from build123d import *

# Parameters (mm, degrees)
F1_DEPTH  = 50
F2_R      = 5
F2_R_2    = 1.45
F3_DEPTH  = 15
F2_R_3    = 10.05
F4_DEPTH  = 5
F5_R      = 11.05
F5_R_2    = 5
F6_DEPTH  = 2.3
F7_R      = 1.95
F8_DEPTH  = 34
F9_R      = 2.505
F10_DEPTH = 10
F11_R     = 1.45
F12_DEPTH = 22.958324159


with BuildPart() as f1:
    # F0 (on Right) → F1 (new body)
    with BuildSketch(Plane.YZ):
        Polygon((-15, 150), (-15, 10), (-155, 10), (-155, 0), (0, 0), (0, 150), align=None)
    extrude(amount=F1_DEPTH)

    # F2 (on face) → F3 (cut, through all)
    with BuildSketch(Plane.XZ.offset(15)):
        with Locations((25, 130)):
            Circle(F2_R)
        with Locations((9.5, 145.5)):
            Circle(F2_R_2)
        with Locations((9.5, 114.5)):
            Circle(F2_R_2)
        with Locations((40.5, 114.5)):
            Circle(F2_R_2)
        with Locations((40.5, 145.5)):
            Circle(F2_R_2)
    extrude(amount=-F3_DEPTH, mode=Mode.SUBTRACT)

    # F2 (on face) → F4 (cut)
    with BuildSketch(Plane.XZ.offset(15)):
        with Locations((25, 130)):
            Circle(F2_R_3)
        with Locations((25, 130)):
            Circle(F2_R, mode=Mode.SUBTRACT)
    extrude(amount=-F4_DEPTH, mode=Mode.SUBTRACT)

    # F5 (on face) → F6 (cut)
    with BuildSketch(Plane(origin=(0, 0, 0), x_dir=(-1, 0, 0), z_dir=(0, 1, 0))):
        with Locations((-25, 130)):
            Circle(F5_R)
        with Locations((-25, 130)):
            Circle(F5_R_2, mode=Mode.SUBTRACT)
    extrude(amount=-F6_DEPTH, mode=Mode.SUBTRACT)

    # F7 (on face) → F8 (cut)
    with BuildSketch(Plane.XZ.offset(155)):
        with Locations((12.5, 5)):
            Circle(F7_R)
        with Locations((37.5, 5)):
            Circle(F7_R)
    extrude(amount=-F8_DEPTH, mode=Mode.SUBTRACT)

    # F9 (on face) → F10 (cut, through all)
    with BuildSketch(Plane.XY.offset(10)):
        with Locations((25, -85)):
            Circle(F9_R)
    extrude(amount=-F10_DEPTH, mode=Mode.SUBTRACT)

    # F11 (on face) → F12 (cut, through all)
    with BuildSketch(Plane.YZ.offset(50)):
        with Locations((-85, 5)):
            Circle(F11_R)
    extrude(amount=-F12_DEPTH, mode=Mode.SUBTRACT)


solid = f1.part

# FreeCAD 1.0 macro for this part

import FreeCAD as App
import Part
import Sketcher
from FreeCAD import Vector

doc = App.newDocument("Part")
body = doc.addObject("PartDesign::Body", "Body")

sketch1 = body.newObject("Sketcher::SketchObject", "Sketch")
sketch1.AttachmentSupport = (doc.getObject("YZ_Plane"), [""])
sketch1.MapMode = "FlatFace"
sketch1.addGeometry([
    Part.LineSegment(Vector(-15, 150, 0), Vector(-15, 10, 0)),
    Part.LineSegment(Vector(-15, 10, 0), Vector(-155, 10, 0)),
    Part.LineSegment(Vector(-155, 10, 0), Vector(-155, 0, 0)),
    Part.LineSegment(Vector(-155, 0, 0), Vector(0, 0, 0)),
    Part.LineSegment(Vector(0, 0, 0), Vector(0, 150, 0)),
    Part.LineSegment(Vector(0, 150, 0), Vector(-15, 150, 0)),
], False)
sketch1.addConstraint([
    Sketcher.Constraint("Coincident", 0, 2, 1, 1),
    Sketcher.Constraint("Coincident", 1, 2, 2, 1),
    Sketcher.Constraint("Coincident", 2, 2, 3, 1),
    Sketcher.Constraint("Coincident", 3, 2, 4, 1),
    Sketcher.Constraint("Coincident", 4, 2, 5, 1),
    Sketcher.Constraint("Coincident", 5, 2, 0, 1),
    Sketcher.Constraint("Vertical", 0),
    Sketcher.Constraint("Horizontal", 1),
    Sketcher.Constraint("Vertical", 2),
    Sketcher.Constraint("Horizontal", 3),
    Sketcher.Constraint("Vertical", 4),
    Sketcher.Constraint("Horizontal", 5),
    Sketcher.Constraint("Coincident", 3, 2, -1, 1),
    Sketcher.Constraint("Equal", 1, 0),
    Sketcher.Constraint("DistanceX", 1, 2, 1, 1, 140.0),
    Sketcher.Constraint("DistanceX", 3, 1, 3, 2, 155.0),
    Sketcher.Constraint("DistanceY", 2, 2, 2, 1, 10.0),
])
pad1 = body.newObject("PartDesign::Pad", "Pad")
pad1.Profile = sketch1
pad1.Length = 50

sketch2 = body.newObject("Sketcher::SketchObject", "Sketch001")
sketch2.AttachmentSupport = (doc.getObject("XZ_Plane"), [""])
sketch2.MapMode = "FlatFace"
sketch2.AttachmentOffset = App.Placement(Vector(0, 0, 15), App.Rotation())
sketch2.addGeometry([
    Part.Circle(Vector(25, 130, 0), Vector(0, 0, 1), 5),
    Part.Circle(Vector(9.5, 145.5, 0), Vector(0, 0, 1), 1.4),
    Part.Circle(Vector(9.5, 114.5, 0), Vector(0, 0, 1), 1.4),
    Part.Circle(Vector(40.5, 114.5, 0), Vector(0, 0, 1), 1.4),
    Part.Circle(Vector(40.5, 145.5, 0), Vector(0, 0, 1), 1.4),
], False)
sketch2.addConstraint([
    Sketcher.Constraint("Equal", 1, 2),
    Sketcher.Constraint("Equal", 2, 3),
    Sketcher.Constraint("Equal", 3, 4),
    Sketcher.Constraint("Horizontal", 2, 3, 3, 3),
    Sketcher.Constraint("Horizontal", 1, 3, 4, 3),
    Sketcher.Constraint("Vertical", 1, 3, 2, 3),
    Sketcher.Constraint("Vertical", 3, 3, 4, 3),
    Sketcher.Constraint("Diameter", 0, 10.0),
    Sketcher.Constraint("Diameter", 1, 2.9),
    Sketcher.Constraint("DistanceX", -1, 1, 0, 3, 25.0),
    Sketcher.Constraint("DistanceY", -1, 1, 0, 3, 130.0),
    Sketcher.Constraint("DistanceY", 2, 3, 1, 3, 31.0),
    Sketcher.Constraint("DistanceX", 2, 3, 3, 3, 31.0),
    Sketcher.Constraint("DistanceX", -1, 1, 1, 3, 9.5),
    Sketcher.Constraint("DistanceY", -1, 1, 1, 3, 145.5),
])
pocket1 = body.newObject("PartDesign::Pocket", "Pocket")
pocket1.Profile = sketch2
pocket1.Type = "ThroughAll"

sketch3 = body.newObject("Sketcher::SketchObject", "Sketch002")
sketch3.AttachmentSupport = (doc.getObject("XZ_Plane"), [""])
sketch3.MapMode = "FlatFace"
sketch3.AttachmentOffset = App.Placement(Vector(0, 0, 15), App.Rotation())
sketch3.addGeometry([
    Part.Circle(Vector(25, 130, 0), Vector(0, 0, 1), 10),
    Part.Circle(Vector(25, 130, 0), Vector(0, 0, 1), 5),
], False)
sketch3.addConstraint([
    Sketcher.Constraint("Coincident", 1, 3, 0, 3),
    Sketcher.Constraint("Diameter", 1, 10.0),
    Sketcher.Constraint("Diameter", 0, 20.1),
    Sketcher.Constraint("DistanceX", -1, 1, 0, 3, 25.0),
    Sketcher.Constraint("DistanceY", -1, 1, 0, 3, 130.0),
])
pocket2 = body.newObject("PartDesign::Pocket", "Pocket001")
pocket2.Profile = sketch3
pocket2.Length = 5

sketch4 = body.newObject("Sketcher::SketchObject", "Sketch003")
sketch4.AttachmentSupport = (doc.getObject("XZ_Plane"), [""])
sketch4.MapMode = "FlatFace"
sketch4.addGeometry([
    Part.Circle(Vector(25, 130, 0), Vector(0, 0, 1), 11),
    Part.Circle(Vector(25, 130, 0), Vector(0, 0, 1), 5),
], False)
sketch4.addConstraint([
    Sketcher.Constraint("Coincident", 1, 3, 0, 3),
    Sketcher.Constraint("Diameter", 1, 10.0),
    Sketcher.Constraint("Diameter", 0, 22.1),
    Sketcher.Constraint("DistanceX", -1, 1, 0, 3, 25.0),
    Sketcher.Constraint("DistanceY", -1, 1, 0, 3, 130.0),
])
pocket3 = body.newObject("PartDesign::Pocket", "Pocket002")
pocket3.Profile = sketch4
pocket3.Length = 2.3
pocket3.Reversed = True

sketch5 = body.newObject("Sketcher::SketchObject", "Sketch004")
sketch5.AttachmentSupport = (doc.getObject("XZ_Plane"), [""])
sketch5.MapMode = "FlatFace"
sketch5.AttachmentOffset = App.Placement(Vector(0, 0, 155), App.Rotation())
sketch5.addGeometry([
    Part.Circle(Vector(12.5, 5, 0), Vector(0, 0, 1), 1.9),
    Part.Circle(Vector(37.5, 5, 0), Vector(0, 0, 1), 1.9),
], False)
sketch5.addConstraint([
    Sketcher.Constraint("Equal", 0, 1),
    Sketcher.Constraint("Horizontal", 0, 3, 1, 3),
    Sketcher.Constraint("Diameter", 0, 3.9),
    Sketcher.Constraint("DistanceY", -1, 1, 0, 3, 5.0),
    Sketcher.Constraint("DistanceX", 0, 3, 1, 3, 25.0),
    Sketcher.Constraint("DistanceX", -1, 1, 0, 3, 12.5),
])
pocket4 = body.newObject("PartDesign::Pocket", "Pocket003")
pocket4.Profile = sketch5
pocket4.Length = 34

sketch6 = body.newObject("Sketcher::SketchObject", "Sketch005")
sketch6.AttachmentSupport = (doc.getObject("XY_Plane"), [""])
sketch6.MapMode = "FlatFace"
sketch6.AttachmentOffset = App.Placement(Vector(0, 0, 10), App.Rotation())
sketch6.addGeometry(Part.Circle(Vector(25, -85, 0), Vector(0, 0, 1), 2.5), False)
sketch6.addConstraint([
    Sketcher.Constraint("Diameter", 0, 5.01),
    Sketcher.Constraint("DistanceX", -1, 1, 0, 3, 25.0),
    Sketcher.Constraint("DistanceY", 0, 3, -1, 1, 85.0),
])
pocket5 = body.newObject("PartDesign::Pocket", "Pocket004")
pocket5.Profile = sketch6
pocket5.Type = "ThroughAll"

sketch7 = body.newObject("Sketcher::SketchObject", "Sketch006")
sketch7.AttachmentSupport = (doc.getObject("YZ_Plane"), [""])
sketch7.MapMode = "FlatFace"
sketch7.AttachmentOffset = App.Placement(Vector(0, 0, 50), App.Rotation())
sketch7.addGeometry(Part.Circle(Vector(-85, 5, 0), Vector(0, 0, 1), 1.4), False)
sketch7.addConstraint([
    Sketcher.Constraint("Diameter", 0, 2.9),
    Sketcher.Constraint("DistanceX", 0, 3, -1, 1, 85.0),
    Sketcher.Constraint("DistanceY", -1, 1, 0, 3, 5.0),
])
pocket6 = body.newObject("PartDesign::Pocket", "Pocket005")
pocket6.Profile = sketch7
pocket6.Length = 22.958324

doc.recompute()
